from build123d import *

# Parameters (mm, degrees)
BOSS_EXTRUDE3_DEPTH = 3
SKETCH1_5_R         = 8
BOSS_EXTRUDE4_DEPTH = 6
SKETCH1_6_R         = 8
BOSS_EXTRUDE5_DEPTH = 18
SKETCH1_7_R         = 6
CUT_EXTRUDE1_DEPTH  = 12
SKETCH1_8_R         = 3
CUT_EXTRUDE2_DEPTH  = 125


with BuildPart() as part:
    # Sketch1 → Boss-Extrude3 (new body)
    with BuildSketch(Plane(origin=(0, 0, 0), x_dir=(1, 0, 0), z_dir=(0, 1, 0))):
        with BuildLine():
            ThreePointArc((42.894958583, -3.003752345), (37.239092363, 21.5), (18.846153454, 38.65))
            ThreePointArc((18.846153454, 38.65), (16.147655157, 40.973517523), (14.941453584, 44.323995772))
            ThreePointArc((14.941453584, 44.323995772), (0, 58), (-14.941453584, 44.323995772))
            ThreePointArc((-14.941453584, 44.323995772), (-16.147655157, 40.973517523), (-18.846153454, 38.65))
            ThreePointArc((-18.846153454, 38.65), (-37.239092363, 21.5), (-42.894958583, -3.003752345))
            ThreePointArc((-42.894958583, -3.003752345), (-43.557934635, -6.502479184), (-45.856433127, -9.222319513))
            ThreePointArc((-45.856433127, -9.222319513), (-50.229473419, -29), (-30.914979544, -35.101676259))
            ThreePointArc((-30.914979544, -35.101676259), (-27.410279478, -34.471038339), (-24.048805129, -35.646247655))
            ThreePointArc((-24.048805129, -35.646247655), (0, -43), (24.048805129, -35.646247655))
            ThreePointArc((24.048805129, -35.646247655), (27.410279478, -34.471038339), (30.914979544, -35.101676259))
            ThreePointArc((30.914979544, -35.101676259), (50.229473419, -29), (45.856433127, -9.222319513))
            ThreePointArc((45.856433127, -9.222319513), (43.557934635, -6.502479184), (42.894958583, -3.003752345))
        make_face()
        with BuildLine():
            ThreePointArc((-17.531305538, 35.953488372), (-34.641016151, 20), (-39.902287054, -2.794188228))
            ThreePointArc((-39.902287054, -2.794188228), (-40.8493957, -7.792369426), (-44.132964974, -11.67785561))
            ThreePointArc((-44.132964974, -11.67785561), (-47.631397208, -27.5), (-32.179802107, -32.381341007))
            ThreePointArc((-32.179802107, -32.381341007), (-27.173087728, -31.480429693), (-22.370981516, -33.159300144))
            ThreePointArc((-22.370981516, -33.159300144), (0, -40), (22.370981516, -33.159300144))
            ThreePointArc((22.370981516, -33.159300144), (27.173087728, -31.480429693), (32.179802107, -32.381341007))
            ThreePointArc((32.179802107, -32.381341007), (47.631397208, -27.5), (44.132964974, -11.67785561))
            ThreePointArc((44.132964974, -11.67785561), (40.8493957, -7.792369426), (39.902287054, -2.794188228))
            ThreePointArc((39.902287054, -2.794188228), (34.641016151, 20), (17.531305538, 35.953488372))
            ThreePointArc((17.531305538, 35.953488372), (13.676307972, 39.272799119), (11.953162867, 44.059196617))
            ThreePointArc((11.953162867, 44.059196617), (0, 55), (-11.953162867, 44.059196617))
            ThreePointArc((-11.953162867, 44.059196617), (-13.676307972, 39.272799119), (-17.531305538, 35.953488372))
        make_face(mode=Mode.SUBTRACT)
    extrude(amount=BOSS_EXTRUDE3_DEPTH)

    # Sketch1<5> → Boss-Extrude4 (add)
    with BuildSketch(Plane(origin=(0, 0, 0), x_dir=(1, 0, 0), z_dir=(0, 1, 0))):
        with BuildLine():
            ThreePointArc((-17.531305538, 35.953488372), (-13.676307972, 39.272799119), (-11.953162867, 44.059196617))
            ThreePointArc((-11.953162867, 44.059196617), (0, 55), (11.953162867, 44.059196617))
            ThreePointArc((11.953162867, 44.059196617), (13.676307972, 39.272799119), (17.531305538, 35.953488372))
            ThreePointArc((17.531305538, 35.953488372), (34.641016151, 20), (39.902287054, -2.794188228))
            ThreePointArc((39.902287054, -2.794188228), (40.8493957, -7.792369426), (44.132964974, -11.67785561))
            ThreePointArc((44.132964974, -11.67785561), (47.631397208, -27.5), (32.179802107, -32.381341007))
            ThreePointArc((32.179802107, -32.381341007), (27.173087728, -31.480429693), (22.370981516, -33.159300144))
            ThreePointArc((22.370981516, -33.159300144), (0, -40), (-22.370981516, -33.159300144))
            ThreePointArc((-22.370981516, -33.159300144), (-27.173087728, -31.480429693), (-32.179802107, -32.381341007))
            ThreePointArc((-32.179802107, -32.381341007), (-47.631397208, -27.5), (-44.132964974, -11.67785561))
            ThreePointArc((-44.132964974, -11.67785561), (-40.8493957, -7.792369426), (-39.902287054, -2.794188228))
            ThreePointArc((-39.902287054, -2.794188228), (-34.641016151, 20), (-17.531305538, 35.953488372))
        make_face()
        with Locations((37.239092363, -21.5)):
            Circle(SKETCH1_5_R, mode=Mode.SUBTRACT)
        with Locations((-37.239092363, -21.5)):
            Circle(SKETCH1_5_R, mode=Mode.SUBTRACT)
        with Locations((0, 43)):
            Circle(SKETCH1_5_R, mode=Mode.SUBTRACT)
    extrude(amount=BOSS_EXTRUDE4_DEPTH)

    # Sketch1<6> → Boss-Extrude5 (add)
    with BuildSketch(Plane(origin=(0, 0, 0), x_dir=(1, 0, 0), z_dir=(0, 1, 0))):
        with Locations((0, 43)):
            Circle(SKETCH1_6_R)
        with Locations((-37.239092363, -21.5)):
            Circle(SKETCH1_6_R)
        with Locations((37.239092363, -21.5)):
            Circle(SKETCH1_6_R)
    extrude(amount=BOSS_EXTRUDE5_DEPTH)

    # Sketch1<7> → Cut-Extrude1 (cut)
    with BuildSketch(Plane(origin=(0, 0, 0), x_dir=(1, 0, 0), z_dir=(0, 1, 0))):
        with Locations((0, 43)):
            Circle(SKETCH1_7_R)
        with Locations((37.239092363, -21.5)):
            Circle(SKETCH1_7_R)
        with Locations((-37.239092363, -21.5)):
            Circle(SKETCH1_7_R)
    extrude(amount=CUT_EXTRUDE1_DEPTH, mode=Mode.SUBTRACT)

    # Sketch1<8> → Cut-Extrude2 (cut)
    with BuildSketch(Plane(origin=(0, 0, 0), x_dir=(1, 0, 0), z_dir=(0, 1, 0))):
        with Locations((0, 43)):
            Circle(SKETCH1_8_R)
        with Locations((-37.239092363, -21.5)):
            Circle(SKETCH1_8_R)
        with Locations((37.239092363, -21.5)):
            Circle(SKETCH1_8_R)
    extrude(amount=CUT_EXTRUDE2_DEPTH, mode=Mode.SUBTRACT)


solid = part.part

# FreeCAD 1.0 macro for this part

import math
import FreeCAD as App
import Part
import Sketcher

doc = App.newDocument("Part")
params = doc.addObject("Spreadsheet::Sheet", "Params")
for row, (alias, value) in enumerate([
    ("sketch1_radius", "43 mm"),
    ("sketch1_radius2", "7 mm"),
    ("sketch1_radius3", "15 mm"),
    ("sketch1_radius4", "40 mm"),
    ("pad1_length", "3 mm"),
    ("sketch2_diameter", "16 mm"),
    ("sketch2_radius", "10 mm"),
    ("sketch2_radius2", "40 mm"),
    ("sketch2_radius3", "12 mm"),
    ("pad2_length", "6 mm"),
    ("sketch3_diameter", "16 mm"),
    ("pad3_length", "18 mm"),
    ("sketch4_diameter", "12 mm"),
    ("pocket1_length", "12 mm"),
    ("sketch5_diameter", "6 mm"),
    ("pocket2_length", "125 mm"),
], start=1):
    params.set(f"A{row}", alias)
    params.set(f"B{row}", "=" + value)
    params.setAlias(f"B{row}", alias)

body = doc.addObject("PartDesign::Body", "Body")

# Sketch on XZ plane
sketch1 = body.newObject("Sketcher::SketchObject", "Sketch")
sketch1.AttachmentSupport = (doc.getObject("XZ_Plane"), [""])
sketch1.MapMode = "FlatFace"
sketch1.addGeometry(Part.ArcOfCircle(Part.Circle(App.Vector(0, 0, 0), App.Vector(0, 0, 1), 43), math.radians(-64), math.radians(4)), False)
sketch1.addGeometry(Part.ArcOfCircle(Part.Circle(App.Vector(22, -45, 0), App.Vector(0, 0, 1), 7), math.radians(116), math.radians(175)), False)
sketch1.addGeometry(Part.ArcOfCircle(Part.Circle(App.Vector(0, -43, 0), App.Vector(0, 0, 1), 15), math.radians(-175), math.radians(-5)), False)
sketch1.addGeometry(Part.ArcOfCircle(Part.Circle(App.Vector(-22, -45, 0), App.Vector(0, 0, 1), 7), math.radians(5), math.radians(64)), False)
sketch1.addGeometry(Part.ArcOfCircle(Part.Circle(App.Vector(0, 0, 0), App.Vector(0, 0, 1), 43), math.radians(176), math.radians(244)), False)
sketch1.addGeometry(Part.ArcOfCircle(Part.Circle(App.Vector(-50, 3, 0), App.Vector(0, 0, 1), 7), math.radians(-4), math.radians(55)), False)
sketch1.addGeometry(Part.ArcOfCircle(Part.Circle(App.Vector(-37, 22, 0), App.Vector(0, 0, 1), 15), math.radians(65), math.radians(235)), False)
sketch1.addGeometry(Part.ArcOfCircle(Part.Circle(App.Vector(-28, 41, 0), App.Vector(0, 0, 1), 7), math.radians(-115), math.radians(-56)), False)
sketch1.addGeometry(Part.ArcOfCircle(Part.Circle(App.Vector(0, 0, 0), App.Vector(0, 0, 1), 43), math.radians(56), math.radians(124)), False)
sketch1.addGeometry(Part.ArcOfCircle(Part.Circle(App.Vector(28, 41, 0), App.Vector(0, 0, 1), 7), math.radians(-124), math.radians(-65)), False)
sketch1.addGeometry(Part.ArcOfCircle(Part.Circle(App.Vector(37, 22, 0), App.Vector(0, 0, 1), 15), math.radians(-55), math.radians(115)), False)
sketch1.addGeometry(Part.ArcOfCircle(Part.Circle(App.Vector(50, 3, 0), App.Vector(0, 0, 1), 7), math.radians(125), math.radians(184)), False)
sketch1.addGeometry(Part.ArcOfCircle(Part.Circle(App.Vector(0, 0, 0), App.Vector(0, 0, 1), 40), math.radians(176), math.radians(244)), False)
sketch1.addGeometry(Part.ArcOfCircle(Part.Circle(App.Vector(-22, -45, 0), App.Vector(0, 0, 1), 10), math.radians(5), math.radians(64)), False)
sketch1.addGeometry(Part.ArcOfCircle(Part.Circle(App.Vector(0, -43, 0), App.Vector(0, 0, 1), 12), math.radians(-175), math.radians(-5)), False)
sketch1.addGeometry(Part.ArcOfCircle(Part.Circle(App.Vector(22, -45, 0), App.Vector(0, 0, 1), 10), math.radians(116), math.radians(175)), False)
sketch1.addGeometry(Part.ArcOfCircle(Part.Circle(App.Vector(0, 0, 0), App.Vector(0, 0, 1), 40), math.radians(-64), math.radians(4)), False)
sketch1.addGeometry(Part.ArcOfCircle(Part.Circle(App.Vector(50, 3, 0), App.Vector(0, 0, 1), 10), math.radians(125), math.radians(184)), False)
sketch1.addGeometry(Part.ArcOfCircle(Part.Circle(App.Vector(37, 22, 0), App.Vector(0, 0, 1), 12), math.radians(-55), math.radians(115)), False)
sketch1.addGeometry(Part.ArcOfCircle(Part.Circle(App.Vector(28, 41, 0), App.Vector(0, 0, 1), 10), math.radians(-124), math.radians(-65)), False)
sketch1.addGeometry(Part.ArcOfCircle(Part.Circle(App.Vector(0, 0, 0), App.Vector(0, 0, 1), 40), math.radians(56), math.radians(124)), False)
sketch1.addGeometry(Part.ArcOfCircle(Part.Circle(App.Vector(-28, 41, 0), App.Vector(0, 0, 1), 10), math.radians(-115), math.radians(-56)), False)
sketch1.addGeometry(Part.ArcOfCircle(Part.Circle(App.Vector(-37, 22, 0), App.Vector(0, 0, 1), 12), math.radians(65), math.radians(235)), False)
sketch1.addGeometry(Part.ArcOfCircle(Part.Circle(App.Vector(-50, 3, 0), App.Vector(0, 0, 1), 10), math.radians(-4), math.radians(55)), False)
sketch1.addConstraint(Sketcher.Constraint("Tangent", 0, 1, 1, 1))
sketch1.addConstraint(Sketcher.Constraint("Tangent", 1, 2, 2, 2))
sketch1.addConstraint(Sketcher.Constraint("Tangent", 2, 1, 3, 1))
sketch1.addConstraint(Sketcher.Constraint("Tangent", 3, 2, 4, 2))
sketch1.addConstraint(Sketcher.Constraint("Tangent", 4, 1, 5, 1))
sketch1.addConstraint(Sketcher.Constraint("Tangent", 5, 2, 6, 2))
sketch1.addConstraint(Sketcher.Constraint("Tangent", 6, 1, 7, 1))
sketch1.addConstraint(Sketcher.Constraint("Tangent", 7, 2, 8, 2))
sketch1.addConstraint(Sketcher.Constraint("Tangent", 8, 1, 9, 1))
sketch1.addConstraint(Sketcher.Constraint("Tangent", 9, 2, 10, 2))
sketch1.addConstraint(Sketcher.Constraint("Tangent", 10, 1, 11, 1))
sketch1.addConstraint(Sketcher.Constraint("Tangent", 11, 2, 0, 2))
sketch1.addConstraint(Sketcher.Constraint("Tangent", 12, 2, 13, 2))
sketch1.addConstraint(Sketcher.Constraint("Tangent", 13, 1, 14, 1))
sketch1.addConstraint(Sketcher.Constraint("Tangent", 14, 2, 15, 2))
sketch1.addConstraint(Sketcher.Constraint("Tangent", 15, 1, 16, 1))
sketch1.addConstraint(Sketcher.Constraint("Tangent", 16, 2, 17, 2))
sketch1.addConstraint(Sketcher.Constraint("Tangent", 17, 1, 18, 1))
sketch1.addConstraint(Sketcher.Constraint("Tangent", 18, 2, 19, 2))
sketch1.addConstraint(Sketcher.Constraint("Tangent", 19, 1, 20, 1))
sketch1.addConstraint(Sketcher.Constraint("Tangent", 20, 2, 21, 2))
sketch1.addConstraint(Sketcher.Constraint("Tangent", 21, 1, 22, 1))
sketch1.addConstraint(Sketcher.Constraint("Tangent", 22, 2, 23, 2))
sketch1.addConstraint(Sketcher.Constraint("Tangent", 23, 1, 12, 1))
sketch1.addConstraint(Sketcher.Constraint("Coincident", 0, 3, -1, 1))
sketch1.addConstraint(Sketcher.Constraint("Coincident", 4, 3, -1, 1))
sketch1.addConstraint(Sketcher.Constraint("Coincident", 8, 3, -1, 1))
sketch1.addConstraint(Sketcher.Constraint("Coincident", 12, 3, -1, 1))
sketch1.addConstraint(Sketcher.Constraint("Coincident", 16, 3, -1, 1))
sketch1.addConstraint(Sketcher.Constraint("Coincident", 20, 3, -1, 1))
sketch1.addConstraint(Sketcher.Constraint("Coincident", 13, 3, 3, 3))
sketch1.addConstraint(Sketcher.Constraint("Coincident", 14, 3, 2, 3))
sketch1.addConstraint(Sketcher.Constraint("Coincident", 15, 3, 1, 3))
sketch1.addConstraint(Sketcher.Constraint("Coincident", 17, 3, 11, 3))
sketch1.addConstraint(Sketcher.Constraint("Coincident", 18, 3, 10, 3))
sketch1.addConstraint(Sketcher.Constraint("Coincident", 19, 3, 9, 3))
sketch1.addConstraint(Sketcher.Constraint("Coincident", 21, 3, 7, 3))
sketch1.addConstraint(Sketcher.Constraint("Coincident", 22, 3, 6, 3))
sketch1.addConstraint(Sketcher.Constraint("Equal", 1, 3))
sketch1.addConstraint(Sketcher.Constraint("Equal", 0, 4))
sketch1.addConstraint(Sketcher.Constraint("Equal", 3, 5))
sketch1.addConstraint(Sketcher.Constraint("Equal", 2, 6))
sketch1.addConstraint(Sketcher.Constraint("Equal", 5, 7))
sketch1.addConstraint(Sketcher.Constraint("Equal", 4, 8))
sketch1.addConstraint(Sketcher.Constraint("Equal", 7, 9))
sketch1.addConstraint(Sketcher.Constraint("Equal", 6, 10))
sketch1.addConstraint(Sketcher.Constraint("Equal", 9, 11))
sketch1.addConstraint(Sketcher.Constraint("Equal", 21, 23))
sketch1.addConstraint(Sketcher.Constraint("Symmetric", 6, 3, 10, 3, -2))
sketch1.addConstraint(Sketcher.Constraint("PointOnObject", 2, 3, -2))
sketch1.addConstraint(Sketcher.Constraint("Radius", 0, 43.0))
sketch1.addConstraint(Sketcher.Constraint("Radius", 1, 7.0))
sketch1.addConstraint(Sketcher.Constraint("Radius", 2, 15.0))
sketch1.addConstraint(Sketcher.Constraint("Radius", 12, 40.0))
sketch1.addConstraint(Sketcher.Constraint("DistanceY", 2, 3, -1, 1, 43.0))
sketch1.addConstraint(Sketcher.Constraint("DistanceY", -1, 1, 6, 3, 21.5))
sketch1.addConstraint(Sketcher.Constraint("DistanceX", 19, 1, 9, 2, 8.543998))
sketch1.setExpression("Constraints[50]", "Params.sketch1_radius")
sketch1.setExpression("Constraints[51]", "Params.sketch1_radius2")
sketch1.setExpression("Constraints[52]", "Params.sketch1_radius3")
sketch1.setExpression("Constraints[53]", "Params.sketch1_radius4")
pad1 = body.newObject("PartDesign::Pad", "Pad")
pad1.Profile = sketch1
pad1.setExpression("Length", "Params.pad1_length")
pad1.Reversed = True

# Sketch on XZ plane
sketch2 = body.newObject("Sketcher::SketchObject", "Sketch001")
sketch2.AttachmentSupport = (doc.getObject("XZ_Plane"), [""])
sketch2.MapMode = "FlatFace"
sketch2.addGeometry(Part.ArcOfCircle(Part.Circle(App.Vector(-22, -45, 0), App.Vector(0, 0, 1), 10), math.radians(5), math.radians(64)), False)
sketch2.addGeometry(Part.ArcOfCircle(Part.Circle(App.Vector(0, 0, 0), App.Vector(0, 0, 1), 40), math.radians(176), math.radians(244)), False)
sketch2.addGeometry(Part.ArcOfCircle(Part.Circle(App.Vector(-50, 3, 0), App.Vector(0, 0, 1), 10), math.radians(-4), math.radians(55)), False)
sketch2.addGeometry(Part.ArcOfCircle(Part.Circle(App.Vector(-37, 22, 0), App.Vector(0, 0, 1), 12), math.radians(65), math.radians(235)), False)
sketch2.addGeometry(Part.ArcOfCircle(Part.Circle(App.Vector(-28, 41, 0), App.Vector(0, 0, 1), 10), math.radians(-115), math.radians(-56)), False)
sketch2.addGeometry(Part.ArcOfCircle(Part.Circle(App.Vector(0, 0, 0), App.Vector(0, 0, 1), 40), math.radians(56), math.radians(124)), False)
sketch2.addGeometry(Part.ArcOfCircle(Part.Circle(App.Vector(28, 41, 0), App.Vector(0, 0, 1), 10), math.radians(-124), math.radians(-65)), False)
sketch2.addGeometry(Part.ArcOfCircle(Part.Circle(App.Vector(37, 22, 0), App.Vector(0, 0, 1), 12), math.radians(-55), math.radians(115)), False)
sketch2.addGeometry(Part.ArcOfCircle(Part.Circle(App.Vector(50, 3, 0), App.Vector(0, 0, 1), 10), math.radians(125), math.radians(184)), False)
sketch2.addGeometry(Part.ArcOfCircle(Part.Circle(App.Vector(0, 0, 0), App.Vector(0, 0, 1), 40), math.radians(-64), math.radians(4)), False)
sketch2.addGeometry(Part.ArcOfCircle(Part.Circle(App.Vector(22, -45, 0), App.Vector(0, 0, 1), 10), math.radians(116), math.radians(175)), False)
sketch2.addGeometry(Part.ArcOfCircle(Part.Circle(App.Vector(0, -43, 0), App.Vector(0, 0, 1), 12), math.radians(-175), math.radians(-5)), False)
sketch2.addGeometry(Part.Circle(App.Vector(37, 22, 0), App.Vector(0, 0, 1), 8), False)
sketch2.addGeometry(Part.Circle(App.Vector(-37, 22, 0), App.Vector(0, 0, 1), 8), False)
sketch2.addGeometry(Part.Circle(App.Vector(0, -43, 0), App.Vector(0, 0, 1), 8), False)
sketch2.addConstraint(Sketcher.Constraint("Tangent", 0, 2, 1, 2))
sketch2.addConstraint(Sketcher.Constraint("Tangent", 1, 1, 2, 1))
sketch2.addConstraint(Sketcher.Constraint("Tangent", 2, 2, 3, 2))
sketch2.addConstraint(Sketcher.Constraint("Tangent", 3, 1, 4, 1))
sketch2.addConstraint(Sketcher.Constraint("Tangent", 4, 2, 5, 2))
sketch2.addConstraint(Sketcher.Constraint("Tangent", 5, 1, 6, 1))
sketch2.addConstraint(Sketcher.Constraint("Tangent", 6, 2, 7, 2))
sketch2.addConstraint(Sketcher.Constraint("Tangent", 7, 1, 8, 1))
sketch2.addConstraint(Sketcher.Constraint("Tangent", 8, 2, 9, 2))
sketch2.addConstraint(Sketcher.Constraint("Tangent", 9, 1, 10, 1))
sketch2.addConstraint(Sketcher.Constraint("Tangent", 10, 2, 11, 2))
sketch2.addConstraint(Sketcher.Constraint("Tangent", 11, 1, 0, 1))
sketch2.addConstraint(Sketcher.Constraint("Coincident", 1, 3, -1, 1))
sketch2.addConstraint(Sketcher.Constraint("Coincident", 5, 3, -1, 1))
sketch2.addConstraint(Sketcher.Constraint("Coincident", 9, 3, -1, 1))
sketch2.addConstraint(Sketcher.Constraint("Coincident", 12, 3, 7, 3))
sketch2.addConstraint(Sketcher.Constraint("Coincident", 13, 3, 3, 3))
sketch2.addConstraint(Sketcher.Constraint("Coincident", 14, 3, 11, 3))
sketch2.addConstraint(Sketcher.Constraint("Equal", 0, 2))
sketch2.addConstraint(Sketcher.Constraint("Equal", 2, 4))
sketch2.addConstraint(Sketcher.Constraint("Equal", 1, 5))
sketch2.addConstraint(Sketcher.Constraint("Equal", 4, 6))
sketch2.addConstraint(Sketcher.Constraint("Equal", 3, 7))
sketch2.addConstraint(Sketcher.Constraint("Equal", 6, 8))
sketch2.addConstraint(Sketcher.Constraint("Equal", 5, 9))
sketch2.addConstraint(Sketcher.Constraint("Equal", 8, 10))
sketch2.addConstraint(Sketcher.Constraint("Equal", 7, 11))
sketch2.addConstraint(Sketcher.Constraint("Equal", 12, 13))
sketch2.addConstraint(Sketcher.Constraint("Equal", 13, 14))
sketch2.addConstraint(Sketcher.Constraint("Symmetric", 3, 3, 7, 3, -2))
sketch2.addConstraint(Sketcher.Constraint("PointOnObject", 11, 3, -2))
sketch2.addConstraint(Sketcher.Constraint("Diameter", 12, 16.0))
sketch2.addConstraint(Sketcher.Constraint("Radius", 0, 10.0))
sketch2.addConstraint(Sketcher.Constraint("Radius", 1, 40.0))
sketch2.addConstraint(Sketcher.Constraint("Radius", 3, 12.0))
sketch2.addConstraint(Sketcher.Constraint("DistanceY", 11, 3, -1, 1, 43.0))
sketch2.addConstraint(Sketcher.Constraint("DistanceY", -1, 1, 3, 3, 21.5))
sketch2.addConstraint(Sketcher.Constraint("DistanceY", -1, 1, 4, 2, 33.1593))
sketch2.setExpression("Constraints[31]", "Params.sketch2_diameter")
sketch2.setExpression("Constraints[32]", "Params.sketch2_radius")
sketch2.setExpression("Constraints[33]", "Params.sketch2_radius2")
sketch2.setExpression("Constraints[34]", "Params.sketch2_radius3")
pad2 = body.newObject("PartDesign::Pad", "Pad001")
pad2.Profile = sketch2
pad2.setExpression("Length", "Params.pad2_length")
pad2.Reversed = True

# Sketch on XZ plane
sketch3 = body.newObject("Sketcher::SketchObject", "Sketch002")
sketch3.AttachmentSupport = (doc.getObject("XZ_Plane"), [""])
sketch3.MapMode = "FlatFace"
sketch3.addGeometry(Part.Circle(App.Vector(0, -43, 0), App.Vector(0, 0, 1), 8), False)
sketch3.addGeometry(Part.Circle(App.Vector(-37, 22, 0), App.Vector(0, 0, 1), 8), False)
sketch3.addGeometry(Part.Circle(App.Vector(37, 22, 0), App.Vector(0, 0, 1), 8), False)
sketch3.addConstraint(Sketcher.Constraint("Equal", 0, 1))
sketch3.addConstraint(Sketcher.Constraint("Equal", 1, 2))
sketch3.addConstraint(Sketcher.Constraint("Symmetric", 1, 3, 2, 3, -2))
sketch3.addConstraint(Sketcher.Constraint("PointOnObject", 0, 3, -2))
sketch3.addConstraint(Sketcher.Constraint("Diameter", 0, 16.0))
sketch3.addConstraint(Sketcher.Constraint("DistanceY", 0, 3, -1, 1, 43.0))
sketch3.addConstraint(Sketcher.Constraint("DistanceY", -1, 1, 1, 3, 21.5))
sketch3.addConstraint(Sketcher.Constraint("DistanceX", 1, 3, -1, 1, 37.239092))
sketch3.setExpression("Constraints[4]", "Params.sketch3_diameter")
pad3 = body.newObject("PartDesign::Pad", "Pad002")
pad3.Profile = sketch3
pad3.setExpression("Length", "Params.pad3_length")
pad3.Reversed = True

# Sketch on XZ plane
sketch4 = body.newObject("Sketcher::SketchObject", "Sketch003")
sketch4.AttachmentSupport = (doc.getObject("XZ_Plane"), [""])
sketch4.MapMode = "FlatFace"
sketch4.addGeometry(Part.Circle(App.Vector(0, -43, 0), App.Vector(0, 0, 1), 6), False)
sketch4.addGeometry(Part.Circle(App.Vector(37, 22, 0), App.Vector(0, 0, 1), 6), False)
sketch4.addGeometry(Part.Circle(App.Vector(-37, 22, 0), App.Vector(0, 0, 1), 6), False)
sketch4.addConstraint(Sketcher.Constraint("Equal", 0, 1))
sketch4.addConstraint(Sketcher.Constraint("Equal", 1, 2))
sketch4.addConstraint(Sketcher.Constraint("Symmetric", 1, 3, 2, 3, -2))
sketch4.addConstraint(Sketcher.Constraint("PointOnObject", 0, 3, -2))
sketch4.addConstraint(Sketcher.Constraint("Diameter", 0, 12.0))
sketch4.addConstraint(Sketcher.Constraint("DistanceY", 0, 3, -1, 1, 43.0))
sketch4.addConstraint(Sketcher.Constraint("DistanceY", -1, 1, 1, 3, 21.5))
sketch4.addConstraint(Sketcher.Constraint("DistanceX", -1, 1, 1, 3, 37.239092))
sketch4.setExpression("Constraints[4]", "Params.sketch4_diameter")
pocket1 = body.newObject("PartDesign::Pocket", "Pocket")
pocket1.Profile = sketch4
pocket1.setExpression("Length", "Params.pocket1_length")

# Sketch on XZ plane
sketch5 = body.newObject("Sketcher::SketchObject", "Sketch004")
sketch5.AttachmentSupport = (doc.getObject("XZ_Plane"), [""])
sketch5.MapMode = "FlatFace"
sketch5.addGeometry(Part.Circle(App.Vector(0, -43, 0), App.Vector(0, 0, 1), 3), False)
sketch5.addGeometry(Part.Circle(App.Vector(-37.2, 21.5, 0), App.Vector(0, 0, 1), 3), False)
sketch5.addGeometry(Part.Circle(App.Vector(37.2, 21.5, 0), App.Vector(0, 0, 1), 3), False)
sketch5.addConstraint(Sketcher.Constraint("Equal", 0, 1))
sketch5.addConstraint(Sketcher.Constraint("Equal", 1, 2))
sketch5.addConstraint(Sketcher.Constraint("Symmetric", 1, 3, 2, 3, -2))
sketch5.addConstraint(Sketcher.Constraint("PointOnObject", 0, 3, -2))
sketch5.addConstraint(Sketcher.Constraint("Diameter", 0, 6.0))
sketch5.addConstraint(Sketcher.Constraint("DistanceY", 0, 3, -1, 1, 43.0))
sketch5.addConstraint(Sketcher.Constraint("DistanceY", -1, 1, 1, 3, 21.5))
sketch5.addConstraint(Sketcher.Constraint("DistanceX", 1, 3, -1, 1, 37.239092))
sketch5.setExpression("Constraints[4]", "Params.sketch5_diameter")
pocket2 = body.newObject("PartDesign::Pocket", "Pocket001")
pocket2.Profile = sketch5
pocket2.setExpression("Length", "Params.pocket2_length")

doc.recompute()
